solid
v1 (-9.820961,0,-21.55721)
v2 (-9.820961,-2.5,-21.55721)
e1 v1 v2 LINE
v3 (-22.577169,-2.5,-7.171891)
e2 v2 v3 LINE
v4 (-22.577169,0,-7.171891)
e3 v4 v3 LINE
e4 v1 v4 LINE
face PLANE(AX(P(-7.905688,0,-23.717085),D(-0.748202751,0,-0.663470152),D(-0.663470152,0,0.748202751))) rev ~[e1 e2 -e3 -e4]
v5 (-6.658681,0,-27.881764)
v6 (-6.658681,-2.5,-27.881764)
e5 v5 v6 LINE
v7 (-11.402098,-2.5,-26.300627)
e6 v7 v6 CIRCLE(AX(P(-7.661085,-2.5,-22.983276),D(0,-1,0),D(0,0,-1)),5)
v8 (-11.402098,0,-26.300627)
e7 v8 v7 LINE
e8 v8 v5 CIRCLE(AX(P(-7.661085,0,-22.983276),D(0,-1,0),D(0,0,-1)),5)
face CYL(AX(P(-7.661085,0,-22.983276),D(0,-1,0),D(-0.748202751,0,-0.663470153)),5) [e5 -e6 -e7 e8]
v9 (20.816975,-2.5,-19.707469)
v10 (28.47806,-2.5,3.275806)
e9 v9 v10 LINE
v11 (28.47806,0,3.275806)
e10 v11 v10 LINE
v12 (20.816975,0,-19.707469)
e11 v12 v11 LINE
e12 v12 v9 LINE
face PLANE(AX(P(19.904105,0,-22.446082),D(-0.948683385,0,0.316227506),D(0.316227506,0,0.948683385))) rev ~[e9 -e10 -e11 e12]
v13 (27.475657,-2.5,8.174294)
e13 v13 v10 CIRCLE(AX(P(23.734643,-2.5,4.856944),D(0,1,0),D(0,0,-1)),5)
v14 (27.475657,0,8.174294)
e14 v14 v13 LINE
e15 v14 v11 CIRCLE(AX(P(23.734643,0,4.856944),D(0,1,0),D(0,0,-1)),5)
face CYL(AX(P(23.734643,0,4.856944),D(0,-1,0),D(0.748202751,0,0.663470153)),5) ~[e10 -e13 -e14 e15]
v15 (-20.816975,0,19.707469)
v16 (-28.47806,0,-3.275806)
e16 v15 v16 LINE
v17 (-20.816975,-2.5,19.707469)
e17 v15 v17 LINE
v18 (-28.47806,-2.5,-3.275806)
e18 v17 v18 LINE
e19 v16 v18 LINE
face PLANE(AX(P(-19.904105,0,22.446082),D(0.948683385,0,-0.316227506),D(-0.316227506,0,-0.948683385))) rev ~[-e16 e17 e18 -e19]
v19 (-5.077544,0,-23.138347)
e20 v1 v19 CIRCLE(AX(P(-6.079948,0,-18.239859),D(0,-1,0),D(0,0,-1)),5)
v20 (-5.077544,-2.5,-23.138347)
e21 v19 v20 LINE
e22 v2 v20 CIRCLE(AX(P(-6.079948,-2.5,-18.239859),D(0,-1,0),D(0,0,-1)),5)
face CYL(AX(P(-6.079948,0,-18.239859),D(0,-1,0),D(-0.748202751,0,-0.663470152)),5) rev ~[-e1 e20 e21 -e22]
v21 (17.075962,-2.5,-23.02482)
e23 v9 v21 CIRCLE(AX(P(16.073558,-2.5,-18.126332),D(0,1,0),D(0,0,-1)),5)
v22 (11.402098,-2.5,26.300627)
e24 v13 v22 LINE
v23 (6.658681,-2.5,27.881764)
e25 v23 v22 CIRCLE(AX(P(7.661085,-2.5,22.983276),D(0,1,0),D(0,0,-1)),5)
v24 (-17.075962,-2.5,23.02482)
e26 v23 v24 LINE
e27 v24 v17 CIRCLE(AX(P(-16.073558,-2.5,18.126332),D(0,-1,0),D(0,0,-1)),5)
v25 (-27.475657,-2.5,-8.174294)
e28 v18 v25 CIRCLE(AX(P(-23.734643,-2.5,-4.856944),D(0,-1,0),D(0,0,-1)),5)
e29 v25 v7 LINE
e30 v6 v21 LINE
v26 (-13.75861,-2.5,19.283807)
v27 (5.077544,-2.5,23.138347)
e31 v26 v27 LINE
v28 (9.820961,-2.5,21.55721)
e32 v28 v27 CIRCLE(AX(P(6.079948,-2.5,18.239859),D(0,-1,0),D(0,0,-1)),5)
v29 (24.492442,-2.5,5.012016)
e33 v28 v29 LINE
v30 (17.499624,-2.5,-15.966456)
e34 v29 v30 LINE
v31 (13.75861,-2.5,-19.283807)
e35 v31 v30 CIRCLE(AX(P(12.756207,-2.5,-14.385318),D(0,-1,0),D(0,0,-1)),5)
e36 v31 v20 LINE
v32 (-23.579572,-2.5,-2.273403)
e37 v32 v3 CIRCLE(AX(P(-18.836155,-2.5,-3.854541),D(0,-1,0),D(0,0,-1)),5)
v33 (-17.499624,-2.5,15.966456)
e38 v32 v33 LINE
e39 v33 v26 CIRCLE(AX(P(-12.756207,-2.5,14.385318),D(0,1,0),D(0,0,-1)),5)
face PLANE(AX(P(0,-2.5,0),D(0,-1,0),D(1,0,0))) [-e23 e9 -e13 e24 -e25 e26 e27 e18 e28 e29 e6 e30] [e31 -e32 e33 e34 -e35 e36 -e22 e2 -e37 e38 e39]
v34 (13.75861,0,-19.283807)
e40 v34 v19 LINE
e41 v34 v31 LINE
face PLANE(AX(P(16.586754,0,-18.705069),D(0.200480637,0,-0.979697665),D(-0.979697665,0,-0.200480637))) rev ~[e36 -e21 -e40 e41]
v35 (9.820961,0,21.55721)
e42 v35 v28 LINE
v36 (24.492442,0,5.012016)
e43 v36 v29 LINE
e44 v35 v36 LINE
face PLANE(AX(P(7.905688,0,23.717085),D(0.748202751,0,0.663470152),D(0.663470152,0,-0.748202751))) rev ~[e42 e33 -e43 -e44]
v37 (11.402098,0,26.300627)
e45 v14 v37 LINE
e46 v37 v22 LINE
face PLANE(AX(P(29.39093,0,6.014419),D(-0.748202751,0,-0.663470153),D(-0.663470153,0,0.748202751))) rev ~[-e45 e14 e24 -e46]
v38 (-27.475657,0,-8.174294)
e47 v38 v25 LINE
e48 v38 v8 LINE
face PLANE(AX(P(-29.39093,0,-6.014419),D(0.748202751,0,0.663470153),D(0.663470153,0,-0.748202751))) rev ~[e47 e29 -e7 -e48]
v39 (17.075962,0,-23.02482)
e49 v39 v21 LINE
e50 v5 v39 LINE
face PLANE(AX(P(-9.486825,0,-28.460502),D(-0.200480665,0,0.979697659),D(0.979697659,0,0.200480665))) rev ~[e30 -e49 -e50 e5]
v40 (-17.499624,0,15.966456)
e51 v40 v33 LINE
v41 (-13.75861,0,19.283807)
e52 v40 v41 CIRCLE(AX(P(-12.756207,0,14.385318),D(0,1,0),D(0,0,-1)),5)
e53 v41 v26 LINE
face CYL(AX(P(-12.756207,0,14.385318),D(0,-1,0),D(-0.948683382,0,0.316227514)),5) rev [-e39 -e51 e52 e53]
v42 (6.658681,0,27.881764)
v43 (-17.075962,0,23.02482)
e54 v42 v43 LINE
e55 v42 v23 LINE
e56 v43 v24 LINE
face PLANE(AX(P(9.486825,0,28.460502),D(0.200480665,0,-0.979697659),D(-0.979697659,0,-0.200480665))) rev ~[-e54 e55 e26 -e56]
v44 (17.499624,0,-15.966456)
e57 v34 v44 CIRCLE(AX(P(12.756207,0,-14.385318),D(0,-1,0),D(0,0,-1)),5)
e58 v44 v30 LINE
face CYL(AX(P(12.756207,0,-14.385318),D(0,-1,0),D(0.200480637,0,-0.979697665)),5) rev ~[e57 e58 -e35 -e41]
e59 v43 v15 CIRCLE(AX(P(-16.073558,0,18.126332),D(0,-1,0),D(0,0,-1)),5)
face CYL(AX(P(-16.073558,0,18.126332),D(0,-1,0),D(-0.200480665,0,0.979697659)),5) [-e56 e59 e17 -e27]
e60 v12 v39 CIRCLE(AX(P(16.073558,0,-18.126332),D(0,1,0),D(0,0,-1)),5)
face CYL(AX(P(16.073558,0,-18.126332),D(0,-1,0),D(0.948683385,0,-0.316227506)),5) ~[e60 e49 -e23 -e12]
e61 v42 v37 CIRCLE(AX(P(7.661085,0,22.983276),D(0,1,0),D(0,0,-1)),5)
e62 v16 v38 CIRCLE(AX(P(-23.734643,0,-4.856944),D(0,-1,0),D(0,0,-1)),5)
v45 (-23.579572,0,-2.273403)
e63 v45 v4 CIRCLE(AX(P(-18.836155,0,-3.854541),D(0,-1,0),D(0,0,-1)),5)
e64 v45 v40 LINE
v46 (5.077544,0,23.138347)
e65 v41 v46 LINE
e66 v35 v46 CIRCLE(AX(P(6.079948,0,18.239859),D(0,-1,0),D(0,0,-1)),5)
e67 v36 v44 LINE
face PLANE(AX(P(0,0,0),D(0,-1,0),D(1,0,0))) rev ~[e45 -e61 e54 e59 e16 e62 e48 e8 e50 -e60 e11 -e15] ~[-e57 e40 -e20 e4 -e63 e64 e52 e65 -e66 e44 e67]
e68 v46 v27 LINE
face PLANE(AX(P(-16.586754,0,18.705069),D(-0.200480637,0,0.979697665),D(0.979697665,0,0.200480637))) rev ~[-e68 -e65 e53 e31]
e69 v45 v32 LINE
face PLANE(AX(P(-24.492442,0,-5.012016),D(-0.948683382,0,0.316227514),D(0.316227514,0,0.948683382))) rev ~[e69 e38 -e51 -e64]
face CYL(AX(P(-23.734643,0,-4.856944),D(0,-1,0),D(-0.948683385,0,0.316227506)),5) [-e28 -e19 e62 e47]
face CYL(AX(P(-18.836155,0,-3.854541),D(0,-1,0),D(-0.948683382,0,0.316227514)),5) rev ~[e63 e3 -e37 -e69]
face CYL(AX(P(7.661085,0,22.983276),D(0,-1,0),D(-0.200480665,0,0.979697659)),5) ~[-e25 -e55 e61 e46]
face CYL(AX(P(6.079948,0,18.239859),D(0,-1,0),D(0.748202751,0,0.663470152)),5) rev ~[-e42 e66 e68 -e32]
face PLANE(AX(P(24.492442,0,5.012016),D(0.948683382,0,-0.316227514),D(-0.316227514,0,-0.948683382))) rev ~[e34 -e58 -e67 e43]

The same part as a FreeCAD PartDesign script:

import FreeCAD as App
import Part
import Sketcher
from FreeCAD import Vector
Q = App.Units.Quantity


def edges_at(feature, points):
    """Names of the edges that pass closest to the given points."""
    edges = feature.Shape.Edges
    near = lambda p: min(range(len(edges)), key=lambda i: edges[i].distToShape(Part.Vertex(*p))[0])
    return sorted({f"Edge{near(p) + 1}" for p in points})


def add_polygon(sketch, points):
    """Adds a closed chain of lines whose ends are joined by coincident constraints."""
    first, n = sketch.GeometryCount, len(points)
    for a, b in zip(points, points[1:] + points[:1]):
        sketch.addGeometry(Part.LineSegment(App.Vector(*a, 0), App.Vector(*b, 0)), False)
    for i in range(n):
        sketch.addConstraint(Sketcher.Constraint("Coincident", first + i, 2, first + (i + 1) % n, 1))

doc = App.newDocument("Part")
body = doc.addObject("PartDesign::Body", "Body")

sketch1 = doc.addObject("Sketcher::SketchObject", "Sketch")
body.addObject(sketch1)
sketch1.AttachmentSupport = (doc.XZ_Plane, [""])
sketch1.MapMode = "FlatFace"
add_polygon(sketch1, [(9.486825, 28.460502), (-19.904105, 22.446082), (-29.39093, -6.014419), (-9.486825, -28.460502), (19.904105, -22.446082), (29.39093, 6.014419)])
add_polygon(sketch1, [(-24.492442, -5.012016), (-16.586754, 18.705069), (7.905688, 23.717085), (24.492442, 5.012016), (16.586754, -18.705069), (-7.905688, -23.717085)])
sketch1.addConstraint([
    Sketcher.Constraint("Symmetric", 0, 2, 3, 2, -1, 1),
    Sketcher.Constraint("Symmetric", 1, 2, 4, 2, -1, 1),
    Sketcher.Constraint("Symmetric", 2, 2, 5, 2, -1, 1),
    Sketcher.Constraint("Symmetric", 6, 2, 9, 2, -1, 1),
    Sketcher.Constraint("Symmetric", 7, 2, 10, 2, -1, 1),
    Sketcher.Constraint("Symmetric", 8, 2, 11, 2, -1, 1),
    Sketcher.Constraint("Parallel", 4, 6),
    Sketcher.Constraint("Parallel", 3, 7),
    Sketcher.Constraint("Parallel", 5, 8),
    Sketcher.Constraint("Equal", 0, 1),
    Sketcher.Constraint("Equal", 1, 2),
    Sketcher.Constraint("Equal", 6, 7),
    Sketcher.Constraint("Equal", 7, 8),
    Sketcher.Constraint("Distance", 0, Q("30 mm")),
    Sketcher.Constraint("Distance", 6, Q("25 mm")),
    Sketcher.Constraint("DistanceY", 1, 2, 0, 2, Q("28.460501 mm")),
    Sketcher.Constraint("DistanceX", 1, 2, -1, 1, Q("29.39093 mm")),
    Sketcher.Constraint("DistanceY", 1, 2, -1, 1, Q("6.014419 mm")),
])
pad1 = doc.addObject("PartDesign::Pad", "Pad")
body.addObject(pad1)
pad1.Profile = sketch1
pad1.Length = 2.5
doc.recompute()

fillet = doc.addObject("PartDesign::Fillet", "Fillet")
body.addObject(fillet)
fillet.Base = (pad1, edges_at(pad1, [
    (-19.904, -1.25, 22.446),
    (9.487, -1.25, 28.461),
    (29.391, -1.25, 6.014),
    (19.904, -1.25, -22.446),
    (-9.487, -1.25, -28.461),
    (-29.391, -1.25, -6.014),
]))
fillet.Radius = 5
doc.recompute()

fillet2 = doc.addObject("PartDesign::Fillet", "Fillet001")
body.addObject(fillet2)
fillet2.Base = (fillet, edges_at(fillet, [
    (-24.492, -1.25, -5.012),
    (-7.906, -1.25, -23.717),
    (16.587, -1.25, -18.705),
    (7.906, -1.25, 23.717),
    (-16.587, -1.25, 18.705),
]))
fillet2.Radius = 5

doc.recompute()
